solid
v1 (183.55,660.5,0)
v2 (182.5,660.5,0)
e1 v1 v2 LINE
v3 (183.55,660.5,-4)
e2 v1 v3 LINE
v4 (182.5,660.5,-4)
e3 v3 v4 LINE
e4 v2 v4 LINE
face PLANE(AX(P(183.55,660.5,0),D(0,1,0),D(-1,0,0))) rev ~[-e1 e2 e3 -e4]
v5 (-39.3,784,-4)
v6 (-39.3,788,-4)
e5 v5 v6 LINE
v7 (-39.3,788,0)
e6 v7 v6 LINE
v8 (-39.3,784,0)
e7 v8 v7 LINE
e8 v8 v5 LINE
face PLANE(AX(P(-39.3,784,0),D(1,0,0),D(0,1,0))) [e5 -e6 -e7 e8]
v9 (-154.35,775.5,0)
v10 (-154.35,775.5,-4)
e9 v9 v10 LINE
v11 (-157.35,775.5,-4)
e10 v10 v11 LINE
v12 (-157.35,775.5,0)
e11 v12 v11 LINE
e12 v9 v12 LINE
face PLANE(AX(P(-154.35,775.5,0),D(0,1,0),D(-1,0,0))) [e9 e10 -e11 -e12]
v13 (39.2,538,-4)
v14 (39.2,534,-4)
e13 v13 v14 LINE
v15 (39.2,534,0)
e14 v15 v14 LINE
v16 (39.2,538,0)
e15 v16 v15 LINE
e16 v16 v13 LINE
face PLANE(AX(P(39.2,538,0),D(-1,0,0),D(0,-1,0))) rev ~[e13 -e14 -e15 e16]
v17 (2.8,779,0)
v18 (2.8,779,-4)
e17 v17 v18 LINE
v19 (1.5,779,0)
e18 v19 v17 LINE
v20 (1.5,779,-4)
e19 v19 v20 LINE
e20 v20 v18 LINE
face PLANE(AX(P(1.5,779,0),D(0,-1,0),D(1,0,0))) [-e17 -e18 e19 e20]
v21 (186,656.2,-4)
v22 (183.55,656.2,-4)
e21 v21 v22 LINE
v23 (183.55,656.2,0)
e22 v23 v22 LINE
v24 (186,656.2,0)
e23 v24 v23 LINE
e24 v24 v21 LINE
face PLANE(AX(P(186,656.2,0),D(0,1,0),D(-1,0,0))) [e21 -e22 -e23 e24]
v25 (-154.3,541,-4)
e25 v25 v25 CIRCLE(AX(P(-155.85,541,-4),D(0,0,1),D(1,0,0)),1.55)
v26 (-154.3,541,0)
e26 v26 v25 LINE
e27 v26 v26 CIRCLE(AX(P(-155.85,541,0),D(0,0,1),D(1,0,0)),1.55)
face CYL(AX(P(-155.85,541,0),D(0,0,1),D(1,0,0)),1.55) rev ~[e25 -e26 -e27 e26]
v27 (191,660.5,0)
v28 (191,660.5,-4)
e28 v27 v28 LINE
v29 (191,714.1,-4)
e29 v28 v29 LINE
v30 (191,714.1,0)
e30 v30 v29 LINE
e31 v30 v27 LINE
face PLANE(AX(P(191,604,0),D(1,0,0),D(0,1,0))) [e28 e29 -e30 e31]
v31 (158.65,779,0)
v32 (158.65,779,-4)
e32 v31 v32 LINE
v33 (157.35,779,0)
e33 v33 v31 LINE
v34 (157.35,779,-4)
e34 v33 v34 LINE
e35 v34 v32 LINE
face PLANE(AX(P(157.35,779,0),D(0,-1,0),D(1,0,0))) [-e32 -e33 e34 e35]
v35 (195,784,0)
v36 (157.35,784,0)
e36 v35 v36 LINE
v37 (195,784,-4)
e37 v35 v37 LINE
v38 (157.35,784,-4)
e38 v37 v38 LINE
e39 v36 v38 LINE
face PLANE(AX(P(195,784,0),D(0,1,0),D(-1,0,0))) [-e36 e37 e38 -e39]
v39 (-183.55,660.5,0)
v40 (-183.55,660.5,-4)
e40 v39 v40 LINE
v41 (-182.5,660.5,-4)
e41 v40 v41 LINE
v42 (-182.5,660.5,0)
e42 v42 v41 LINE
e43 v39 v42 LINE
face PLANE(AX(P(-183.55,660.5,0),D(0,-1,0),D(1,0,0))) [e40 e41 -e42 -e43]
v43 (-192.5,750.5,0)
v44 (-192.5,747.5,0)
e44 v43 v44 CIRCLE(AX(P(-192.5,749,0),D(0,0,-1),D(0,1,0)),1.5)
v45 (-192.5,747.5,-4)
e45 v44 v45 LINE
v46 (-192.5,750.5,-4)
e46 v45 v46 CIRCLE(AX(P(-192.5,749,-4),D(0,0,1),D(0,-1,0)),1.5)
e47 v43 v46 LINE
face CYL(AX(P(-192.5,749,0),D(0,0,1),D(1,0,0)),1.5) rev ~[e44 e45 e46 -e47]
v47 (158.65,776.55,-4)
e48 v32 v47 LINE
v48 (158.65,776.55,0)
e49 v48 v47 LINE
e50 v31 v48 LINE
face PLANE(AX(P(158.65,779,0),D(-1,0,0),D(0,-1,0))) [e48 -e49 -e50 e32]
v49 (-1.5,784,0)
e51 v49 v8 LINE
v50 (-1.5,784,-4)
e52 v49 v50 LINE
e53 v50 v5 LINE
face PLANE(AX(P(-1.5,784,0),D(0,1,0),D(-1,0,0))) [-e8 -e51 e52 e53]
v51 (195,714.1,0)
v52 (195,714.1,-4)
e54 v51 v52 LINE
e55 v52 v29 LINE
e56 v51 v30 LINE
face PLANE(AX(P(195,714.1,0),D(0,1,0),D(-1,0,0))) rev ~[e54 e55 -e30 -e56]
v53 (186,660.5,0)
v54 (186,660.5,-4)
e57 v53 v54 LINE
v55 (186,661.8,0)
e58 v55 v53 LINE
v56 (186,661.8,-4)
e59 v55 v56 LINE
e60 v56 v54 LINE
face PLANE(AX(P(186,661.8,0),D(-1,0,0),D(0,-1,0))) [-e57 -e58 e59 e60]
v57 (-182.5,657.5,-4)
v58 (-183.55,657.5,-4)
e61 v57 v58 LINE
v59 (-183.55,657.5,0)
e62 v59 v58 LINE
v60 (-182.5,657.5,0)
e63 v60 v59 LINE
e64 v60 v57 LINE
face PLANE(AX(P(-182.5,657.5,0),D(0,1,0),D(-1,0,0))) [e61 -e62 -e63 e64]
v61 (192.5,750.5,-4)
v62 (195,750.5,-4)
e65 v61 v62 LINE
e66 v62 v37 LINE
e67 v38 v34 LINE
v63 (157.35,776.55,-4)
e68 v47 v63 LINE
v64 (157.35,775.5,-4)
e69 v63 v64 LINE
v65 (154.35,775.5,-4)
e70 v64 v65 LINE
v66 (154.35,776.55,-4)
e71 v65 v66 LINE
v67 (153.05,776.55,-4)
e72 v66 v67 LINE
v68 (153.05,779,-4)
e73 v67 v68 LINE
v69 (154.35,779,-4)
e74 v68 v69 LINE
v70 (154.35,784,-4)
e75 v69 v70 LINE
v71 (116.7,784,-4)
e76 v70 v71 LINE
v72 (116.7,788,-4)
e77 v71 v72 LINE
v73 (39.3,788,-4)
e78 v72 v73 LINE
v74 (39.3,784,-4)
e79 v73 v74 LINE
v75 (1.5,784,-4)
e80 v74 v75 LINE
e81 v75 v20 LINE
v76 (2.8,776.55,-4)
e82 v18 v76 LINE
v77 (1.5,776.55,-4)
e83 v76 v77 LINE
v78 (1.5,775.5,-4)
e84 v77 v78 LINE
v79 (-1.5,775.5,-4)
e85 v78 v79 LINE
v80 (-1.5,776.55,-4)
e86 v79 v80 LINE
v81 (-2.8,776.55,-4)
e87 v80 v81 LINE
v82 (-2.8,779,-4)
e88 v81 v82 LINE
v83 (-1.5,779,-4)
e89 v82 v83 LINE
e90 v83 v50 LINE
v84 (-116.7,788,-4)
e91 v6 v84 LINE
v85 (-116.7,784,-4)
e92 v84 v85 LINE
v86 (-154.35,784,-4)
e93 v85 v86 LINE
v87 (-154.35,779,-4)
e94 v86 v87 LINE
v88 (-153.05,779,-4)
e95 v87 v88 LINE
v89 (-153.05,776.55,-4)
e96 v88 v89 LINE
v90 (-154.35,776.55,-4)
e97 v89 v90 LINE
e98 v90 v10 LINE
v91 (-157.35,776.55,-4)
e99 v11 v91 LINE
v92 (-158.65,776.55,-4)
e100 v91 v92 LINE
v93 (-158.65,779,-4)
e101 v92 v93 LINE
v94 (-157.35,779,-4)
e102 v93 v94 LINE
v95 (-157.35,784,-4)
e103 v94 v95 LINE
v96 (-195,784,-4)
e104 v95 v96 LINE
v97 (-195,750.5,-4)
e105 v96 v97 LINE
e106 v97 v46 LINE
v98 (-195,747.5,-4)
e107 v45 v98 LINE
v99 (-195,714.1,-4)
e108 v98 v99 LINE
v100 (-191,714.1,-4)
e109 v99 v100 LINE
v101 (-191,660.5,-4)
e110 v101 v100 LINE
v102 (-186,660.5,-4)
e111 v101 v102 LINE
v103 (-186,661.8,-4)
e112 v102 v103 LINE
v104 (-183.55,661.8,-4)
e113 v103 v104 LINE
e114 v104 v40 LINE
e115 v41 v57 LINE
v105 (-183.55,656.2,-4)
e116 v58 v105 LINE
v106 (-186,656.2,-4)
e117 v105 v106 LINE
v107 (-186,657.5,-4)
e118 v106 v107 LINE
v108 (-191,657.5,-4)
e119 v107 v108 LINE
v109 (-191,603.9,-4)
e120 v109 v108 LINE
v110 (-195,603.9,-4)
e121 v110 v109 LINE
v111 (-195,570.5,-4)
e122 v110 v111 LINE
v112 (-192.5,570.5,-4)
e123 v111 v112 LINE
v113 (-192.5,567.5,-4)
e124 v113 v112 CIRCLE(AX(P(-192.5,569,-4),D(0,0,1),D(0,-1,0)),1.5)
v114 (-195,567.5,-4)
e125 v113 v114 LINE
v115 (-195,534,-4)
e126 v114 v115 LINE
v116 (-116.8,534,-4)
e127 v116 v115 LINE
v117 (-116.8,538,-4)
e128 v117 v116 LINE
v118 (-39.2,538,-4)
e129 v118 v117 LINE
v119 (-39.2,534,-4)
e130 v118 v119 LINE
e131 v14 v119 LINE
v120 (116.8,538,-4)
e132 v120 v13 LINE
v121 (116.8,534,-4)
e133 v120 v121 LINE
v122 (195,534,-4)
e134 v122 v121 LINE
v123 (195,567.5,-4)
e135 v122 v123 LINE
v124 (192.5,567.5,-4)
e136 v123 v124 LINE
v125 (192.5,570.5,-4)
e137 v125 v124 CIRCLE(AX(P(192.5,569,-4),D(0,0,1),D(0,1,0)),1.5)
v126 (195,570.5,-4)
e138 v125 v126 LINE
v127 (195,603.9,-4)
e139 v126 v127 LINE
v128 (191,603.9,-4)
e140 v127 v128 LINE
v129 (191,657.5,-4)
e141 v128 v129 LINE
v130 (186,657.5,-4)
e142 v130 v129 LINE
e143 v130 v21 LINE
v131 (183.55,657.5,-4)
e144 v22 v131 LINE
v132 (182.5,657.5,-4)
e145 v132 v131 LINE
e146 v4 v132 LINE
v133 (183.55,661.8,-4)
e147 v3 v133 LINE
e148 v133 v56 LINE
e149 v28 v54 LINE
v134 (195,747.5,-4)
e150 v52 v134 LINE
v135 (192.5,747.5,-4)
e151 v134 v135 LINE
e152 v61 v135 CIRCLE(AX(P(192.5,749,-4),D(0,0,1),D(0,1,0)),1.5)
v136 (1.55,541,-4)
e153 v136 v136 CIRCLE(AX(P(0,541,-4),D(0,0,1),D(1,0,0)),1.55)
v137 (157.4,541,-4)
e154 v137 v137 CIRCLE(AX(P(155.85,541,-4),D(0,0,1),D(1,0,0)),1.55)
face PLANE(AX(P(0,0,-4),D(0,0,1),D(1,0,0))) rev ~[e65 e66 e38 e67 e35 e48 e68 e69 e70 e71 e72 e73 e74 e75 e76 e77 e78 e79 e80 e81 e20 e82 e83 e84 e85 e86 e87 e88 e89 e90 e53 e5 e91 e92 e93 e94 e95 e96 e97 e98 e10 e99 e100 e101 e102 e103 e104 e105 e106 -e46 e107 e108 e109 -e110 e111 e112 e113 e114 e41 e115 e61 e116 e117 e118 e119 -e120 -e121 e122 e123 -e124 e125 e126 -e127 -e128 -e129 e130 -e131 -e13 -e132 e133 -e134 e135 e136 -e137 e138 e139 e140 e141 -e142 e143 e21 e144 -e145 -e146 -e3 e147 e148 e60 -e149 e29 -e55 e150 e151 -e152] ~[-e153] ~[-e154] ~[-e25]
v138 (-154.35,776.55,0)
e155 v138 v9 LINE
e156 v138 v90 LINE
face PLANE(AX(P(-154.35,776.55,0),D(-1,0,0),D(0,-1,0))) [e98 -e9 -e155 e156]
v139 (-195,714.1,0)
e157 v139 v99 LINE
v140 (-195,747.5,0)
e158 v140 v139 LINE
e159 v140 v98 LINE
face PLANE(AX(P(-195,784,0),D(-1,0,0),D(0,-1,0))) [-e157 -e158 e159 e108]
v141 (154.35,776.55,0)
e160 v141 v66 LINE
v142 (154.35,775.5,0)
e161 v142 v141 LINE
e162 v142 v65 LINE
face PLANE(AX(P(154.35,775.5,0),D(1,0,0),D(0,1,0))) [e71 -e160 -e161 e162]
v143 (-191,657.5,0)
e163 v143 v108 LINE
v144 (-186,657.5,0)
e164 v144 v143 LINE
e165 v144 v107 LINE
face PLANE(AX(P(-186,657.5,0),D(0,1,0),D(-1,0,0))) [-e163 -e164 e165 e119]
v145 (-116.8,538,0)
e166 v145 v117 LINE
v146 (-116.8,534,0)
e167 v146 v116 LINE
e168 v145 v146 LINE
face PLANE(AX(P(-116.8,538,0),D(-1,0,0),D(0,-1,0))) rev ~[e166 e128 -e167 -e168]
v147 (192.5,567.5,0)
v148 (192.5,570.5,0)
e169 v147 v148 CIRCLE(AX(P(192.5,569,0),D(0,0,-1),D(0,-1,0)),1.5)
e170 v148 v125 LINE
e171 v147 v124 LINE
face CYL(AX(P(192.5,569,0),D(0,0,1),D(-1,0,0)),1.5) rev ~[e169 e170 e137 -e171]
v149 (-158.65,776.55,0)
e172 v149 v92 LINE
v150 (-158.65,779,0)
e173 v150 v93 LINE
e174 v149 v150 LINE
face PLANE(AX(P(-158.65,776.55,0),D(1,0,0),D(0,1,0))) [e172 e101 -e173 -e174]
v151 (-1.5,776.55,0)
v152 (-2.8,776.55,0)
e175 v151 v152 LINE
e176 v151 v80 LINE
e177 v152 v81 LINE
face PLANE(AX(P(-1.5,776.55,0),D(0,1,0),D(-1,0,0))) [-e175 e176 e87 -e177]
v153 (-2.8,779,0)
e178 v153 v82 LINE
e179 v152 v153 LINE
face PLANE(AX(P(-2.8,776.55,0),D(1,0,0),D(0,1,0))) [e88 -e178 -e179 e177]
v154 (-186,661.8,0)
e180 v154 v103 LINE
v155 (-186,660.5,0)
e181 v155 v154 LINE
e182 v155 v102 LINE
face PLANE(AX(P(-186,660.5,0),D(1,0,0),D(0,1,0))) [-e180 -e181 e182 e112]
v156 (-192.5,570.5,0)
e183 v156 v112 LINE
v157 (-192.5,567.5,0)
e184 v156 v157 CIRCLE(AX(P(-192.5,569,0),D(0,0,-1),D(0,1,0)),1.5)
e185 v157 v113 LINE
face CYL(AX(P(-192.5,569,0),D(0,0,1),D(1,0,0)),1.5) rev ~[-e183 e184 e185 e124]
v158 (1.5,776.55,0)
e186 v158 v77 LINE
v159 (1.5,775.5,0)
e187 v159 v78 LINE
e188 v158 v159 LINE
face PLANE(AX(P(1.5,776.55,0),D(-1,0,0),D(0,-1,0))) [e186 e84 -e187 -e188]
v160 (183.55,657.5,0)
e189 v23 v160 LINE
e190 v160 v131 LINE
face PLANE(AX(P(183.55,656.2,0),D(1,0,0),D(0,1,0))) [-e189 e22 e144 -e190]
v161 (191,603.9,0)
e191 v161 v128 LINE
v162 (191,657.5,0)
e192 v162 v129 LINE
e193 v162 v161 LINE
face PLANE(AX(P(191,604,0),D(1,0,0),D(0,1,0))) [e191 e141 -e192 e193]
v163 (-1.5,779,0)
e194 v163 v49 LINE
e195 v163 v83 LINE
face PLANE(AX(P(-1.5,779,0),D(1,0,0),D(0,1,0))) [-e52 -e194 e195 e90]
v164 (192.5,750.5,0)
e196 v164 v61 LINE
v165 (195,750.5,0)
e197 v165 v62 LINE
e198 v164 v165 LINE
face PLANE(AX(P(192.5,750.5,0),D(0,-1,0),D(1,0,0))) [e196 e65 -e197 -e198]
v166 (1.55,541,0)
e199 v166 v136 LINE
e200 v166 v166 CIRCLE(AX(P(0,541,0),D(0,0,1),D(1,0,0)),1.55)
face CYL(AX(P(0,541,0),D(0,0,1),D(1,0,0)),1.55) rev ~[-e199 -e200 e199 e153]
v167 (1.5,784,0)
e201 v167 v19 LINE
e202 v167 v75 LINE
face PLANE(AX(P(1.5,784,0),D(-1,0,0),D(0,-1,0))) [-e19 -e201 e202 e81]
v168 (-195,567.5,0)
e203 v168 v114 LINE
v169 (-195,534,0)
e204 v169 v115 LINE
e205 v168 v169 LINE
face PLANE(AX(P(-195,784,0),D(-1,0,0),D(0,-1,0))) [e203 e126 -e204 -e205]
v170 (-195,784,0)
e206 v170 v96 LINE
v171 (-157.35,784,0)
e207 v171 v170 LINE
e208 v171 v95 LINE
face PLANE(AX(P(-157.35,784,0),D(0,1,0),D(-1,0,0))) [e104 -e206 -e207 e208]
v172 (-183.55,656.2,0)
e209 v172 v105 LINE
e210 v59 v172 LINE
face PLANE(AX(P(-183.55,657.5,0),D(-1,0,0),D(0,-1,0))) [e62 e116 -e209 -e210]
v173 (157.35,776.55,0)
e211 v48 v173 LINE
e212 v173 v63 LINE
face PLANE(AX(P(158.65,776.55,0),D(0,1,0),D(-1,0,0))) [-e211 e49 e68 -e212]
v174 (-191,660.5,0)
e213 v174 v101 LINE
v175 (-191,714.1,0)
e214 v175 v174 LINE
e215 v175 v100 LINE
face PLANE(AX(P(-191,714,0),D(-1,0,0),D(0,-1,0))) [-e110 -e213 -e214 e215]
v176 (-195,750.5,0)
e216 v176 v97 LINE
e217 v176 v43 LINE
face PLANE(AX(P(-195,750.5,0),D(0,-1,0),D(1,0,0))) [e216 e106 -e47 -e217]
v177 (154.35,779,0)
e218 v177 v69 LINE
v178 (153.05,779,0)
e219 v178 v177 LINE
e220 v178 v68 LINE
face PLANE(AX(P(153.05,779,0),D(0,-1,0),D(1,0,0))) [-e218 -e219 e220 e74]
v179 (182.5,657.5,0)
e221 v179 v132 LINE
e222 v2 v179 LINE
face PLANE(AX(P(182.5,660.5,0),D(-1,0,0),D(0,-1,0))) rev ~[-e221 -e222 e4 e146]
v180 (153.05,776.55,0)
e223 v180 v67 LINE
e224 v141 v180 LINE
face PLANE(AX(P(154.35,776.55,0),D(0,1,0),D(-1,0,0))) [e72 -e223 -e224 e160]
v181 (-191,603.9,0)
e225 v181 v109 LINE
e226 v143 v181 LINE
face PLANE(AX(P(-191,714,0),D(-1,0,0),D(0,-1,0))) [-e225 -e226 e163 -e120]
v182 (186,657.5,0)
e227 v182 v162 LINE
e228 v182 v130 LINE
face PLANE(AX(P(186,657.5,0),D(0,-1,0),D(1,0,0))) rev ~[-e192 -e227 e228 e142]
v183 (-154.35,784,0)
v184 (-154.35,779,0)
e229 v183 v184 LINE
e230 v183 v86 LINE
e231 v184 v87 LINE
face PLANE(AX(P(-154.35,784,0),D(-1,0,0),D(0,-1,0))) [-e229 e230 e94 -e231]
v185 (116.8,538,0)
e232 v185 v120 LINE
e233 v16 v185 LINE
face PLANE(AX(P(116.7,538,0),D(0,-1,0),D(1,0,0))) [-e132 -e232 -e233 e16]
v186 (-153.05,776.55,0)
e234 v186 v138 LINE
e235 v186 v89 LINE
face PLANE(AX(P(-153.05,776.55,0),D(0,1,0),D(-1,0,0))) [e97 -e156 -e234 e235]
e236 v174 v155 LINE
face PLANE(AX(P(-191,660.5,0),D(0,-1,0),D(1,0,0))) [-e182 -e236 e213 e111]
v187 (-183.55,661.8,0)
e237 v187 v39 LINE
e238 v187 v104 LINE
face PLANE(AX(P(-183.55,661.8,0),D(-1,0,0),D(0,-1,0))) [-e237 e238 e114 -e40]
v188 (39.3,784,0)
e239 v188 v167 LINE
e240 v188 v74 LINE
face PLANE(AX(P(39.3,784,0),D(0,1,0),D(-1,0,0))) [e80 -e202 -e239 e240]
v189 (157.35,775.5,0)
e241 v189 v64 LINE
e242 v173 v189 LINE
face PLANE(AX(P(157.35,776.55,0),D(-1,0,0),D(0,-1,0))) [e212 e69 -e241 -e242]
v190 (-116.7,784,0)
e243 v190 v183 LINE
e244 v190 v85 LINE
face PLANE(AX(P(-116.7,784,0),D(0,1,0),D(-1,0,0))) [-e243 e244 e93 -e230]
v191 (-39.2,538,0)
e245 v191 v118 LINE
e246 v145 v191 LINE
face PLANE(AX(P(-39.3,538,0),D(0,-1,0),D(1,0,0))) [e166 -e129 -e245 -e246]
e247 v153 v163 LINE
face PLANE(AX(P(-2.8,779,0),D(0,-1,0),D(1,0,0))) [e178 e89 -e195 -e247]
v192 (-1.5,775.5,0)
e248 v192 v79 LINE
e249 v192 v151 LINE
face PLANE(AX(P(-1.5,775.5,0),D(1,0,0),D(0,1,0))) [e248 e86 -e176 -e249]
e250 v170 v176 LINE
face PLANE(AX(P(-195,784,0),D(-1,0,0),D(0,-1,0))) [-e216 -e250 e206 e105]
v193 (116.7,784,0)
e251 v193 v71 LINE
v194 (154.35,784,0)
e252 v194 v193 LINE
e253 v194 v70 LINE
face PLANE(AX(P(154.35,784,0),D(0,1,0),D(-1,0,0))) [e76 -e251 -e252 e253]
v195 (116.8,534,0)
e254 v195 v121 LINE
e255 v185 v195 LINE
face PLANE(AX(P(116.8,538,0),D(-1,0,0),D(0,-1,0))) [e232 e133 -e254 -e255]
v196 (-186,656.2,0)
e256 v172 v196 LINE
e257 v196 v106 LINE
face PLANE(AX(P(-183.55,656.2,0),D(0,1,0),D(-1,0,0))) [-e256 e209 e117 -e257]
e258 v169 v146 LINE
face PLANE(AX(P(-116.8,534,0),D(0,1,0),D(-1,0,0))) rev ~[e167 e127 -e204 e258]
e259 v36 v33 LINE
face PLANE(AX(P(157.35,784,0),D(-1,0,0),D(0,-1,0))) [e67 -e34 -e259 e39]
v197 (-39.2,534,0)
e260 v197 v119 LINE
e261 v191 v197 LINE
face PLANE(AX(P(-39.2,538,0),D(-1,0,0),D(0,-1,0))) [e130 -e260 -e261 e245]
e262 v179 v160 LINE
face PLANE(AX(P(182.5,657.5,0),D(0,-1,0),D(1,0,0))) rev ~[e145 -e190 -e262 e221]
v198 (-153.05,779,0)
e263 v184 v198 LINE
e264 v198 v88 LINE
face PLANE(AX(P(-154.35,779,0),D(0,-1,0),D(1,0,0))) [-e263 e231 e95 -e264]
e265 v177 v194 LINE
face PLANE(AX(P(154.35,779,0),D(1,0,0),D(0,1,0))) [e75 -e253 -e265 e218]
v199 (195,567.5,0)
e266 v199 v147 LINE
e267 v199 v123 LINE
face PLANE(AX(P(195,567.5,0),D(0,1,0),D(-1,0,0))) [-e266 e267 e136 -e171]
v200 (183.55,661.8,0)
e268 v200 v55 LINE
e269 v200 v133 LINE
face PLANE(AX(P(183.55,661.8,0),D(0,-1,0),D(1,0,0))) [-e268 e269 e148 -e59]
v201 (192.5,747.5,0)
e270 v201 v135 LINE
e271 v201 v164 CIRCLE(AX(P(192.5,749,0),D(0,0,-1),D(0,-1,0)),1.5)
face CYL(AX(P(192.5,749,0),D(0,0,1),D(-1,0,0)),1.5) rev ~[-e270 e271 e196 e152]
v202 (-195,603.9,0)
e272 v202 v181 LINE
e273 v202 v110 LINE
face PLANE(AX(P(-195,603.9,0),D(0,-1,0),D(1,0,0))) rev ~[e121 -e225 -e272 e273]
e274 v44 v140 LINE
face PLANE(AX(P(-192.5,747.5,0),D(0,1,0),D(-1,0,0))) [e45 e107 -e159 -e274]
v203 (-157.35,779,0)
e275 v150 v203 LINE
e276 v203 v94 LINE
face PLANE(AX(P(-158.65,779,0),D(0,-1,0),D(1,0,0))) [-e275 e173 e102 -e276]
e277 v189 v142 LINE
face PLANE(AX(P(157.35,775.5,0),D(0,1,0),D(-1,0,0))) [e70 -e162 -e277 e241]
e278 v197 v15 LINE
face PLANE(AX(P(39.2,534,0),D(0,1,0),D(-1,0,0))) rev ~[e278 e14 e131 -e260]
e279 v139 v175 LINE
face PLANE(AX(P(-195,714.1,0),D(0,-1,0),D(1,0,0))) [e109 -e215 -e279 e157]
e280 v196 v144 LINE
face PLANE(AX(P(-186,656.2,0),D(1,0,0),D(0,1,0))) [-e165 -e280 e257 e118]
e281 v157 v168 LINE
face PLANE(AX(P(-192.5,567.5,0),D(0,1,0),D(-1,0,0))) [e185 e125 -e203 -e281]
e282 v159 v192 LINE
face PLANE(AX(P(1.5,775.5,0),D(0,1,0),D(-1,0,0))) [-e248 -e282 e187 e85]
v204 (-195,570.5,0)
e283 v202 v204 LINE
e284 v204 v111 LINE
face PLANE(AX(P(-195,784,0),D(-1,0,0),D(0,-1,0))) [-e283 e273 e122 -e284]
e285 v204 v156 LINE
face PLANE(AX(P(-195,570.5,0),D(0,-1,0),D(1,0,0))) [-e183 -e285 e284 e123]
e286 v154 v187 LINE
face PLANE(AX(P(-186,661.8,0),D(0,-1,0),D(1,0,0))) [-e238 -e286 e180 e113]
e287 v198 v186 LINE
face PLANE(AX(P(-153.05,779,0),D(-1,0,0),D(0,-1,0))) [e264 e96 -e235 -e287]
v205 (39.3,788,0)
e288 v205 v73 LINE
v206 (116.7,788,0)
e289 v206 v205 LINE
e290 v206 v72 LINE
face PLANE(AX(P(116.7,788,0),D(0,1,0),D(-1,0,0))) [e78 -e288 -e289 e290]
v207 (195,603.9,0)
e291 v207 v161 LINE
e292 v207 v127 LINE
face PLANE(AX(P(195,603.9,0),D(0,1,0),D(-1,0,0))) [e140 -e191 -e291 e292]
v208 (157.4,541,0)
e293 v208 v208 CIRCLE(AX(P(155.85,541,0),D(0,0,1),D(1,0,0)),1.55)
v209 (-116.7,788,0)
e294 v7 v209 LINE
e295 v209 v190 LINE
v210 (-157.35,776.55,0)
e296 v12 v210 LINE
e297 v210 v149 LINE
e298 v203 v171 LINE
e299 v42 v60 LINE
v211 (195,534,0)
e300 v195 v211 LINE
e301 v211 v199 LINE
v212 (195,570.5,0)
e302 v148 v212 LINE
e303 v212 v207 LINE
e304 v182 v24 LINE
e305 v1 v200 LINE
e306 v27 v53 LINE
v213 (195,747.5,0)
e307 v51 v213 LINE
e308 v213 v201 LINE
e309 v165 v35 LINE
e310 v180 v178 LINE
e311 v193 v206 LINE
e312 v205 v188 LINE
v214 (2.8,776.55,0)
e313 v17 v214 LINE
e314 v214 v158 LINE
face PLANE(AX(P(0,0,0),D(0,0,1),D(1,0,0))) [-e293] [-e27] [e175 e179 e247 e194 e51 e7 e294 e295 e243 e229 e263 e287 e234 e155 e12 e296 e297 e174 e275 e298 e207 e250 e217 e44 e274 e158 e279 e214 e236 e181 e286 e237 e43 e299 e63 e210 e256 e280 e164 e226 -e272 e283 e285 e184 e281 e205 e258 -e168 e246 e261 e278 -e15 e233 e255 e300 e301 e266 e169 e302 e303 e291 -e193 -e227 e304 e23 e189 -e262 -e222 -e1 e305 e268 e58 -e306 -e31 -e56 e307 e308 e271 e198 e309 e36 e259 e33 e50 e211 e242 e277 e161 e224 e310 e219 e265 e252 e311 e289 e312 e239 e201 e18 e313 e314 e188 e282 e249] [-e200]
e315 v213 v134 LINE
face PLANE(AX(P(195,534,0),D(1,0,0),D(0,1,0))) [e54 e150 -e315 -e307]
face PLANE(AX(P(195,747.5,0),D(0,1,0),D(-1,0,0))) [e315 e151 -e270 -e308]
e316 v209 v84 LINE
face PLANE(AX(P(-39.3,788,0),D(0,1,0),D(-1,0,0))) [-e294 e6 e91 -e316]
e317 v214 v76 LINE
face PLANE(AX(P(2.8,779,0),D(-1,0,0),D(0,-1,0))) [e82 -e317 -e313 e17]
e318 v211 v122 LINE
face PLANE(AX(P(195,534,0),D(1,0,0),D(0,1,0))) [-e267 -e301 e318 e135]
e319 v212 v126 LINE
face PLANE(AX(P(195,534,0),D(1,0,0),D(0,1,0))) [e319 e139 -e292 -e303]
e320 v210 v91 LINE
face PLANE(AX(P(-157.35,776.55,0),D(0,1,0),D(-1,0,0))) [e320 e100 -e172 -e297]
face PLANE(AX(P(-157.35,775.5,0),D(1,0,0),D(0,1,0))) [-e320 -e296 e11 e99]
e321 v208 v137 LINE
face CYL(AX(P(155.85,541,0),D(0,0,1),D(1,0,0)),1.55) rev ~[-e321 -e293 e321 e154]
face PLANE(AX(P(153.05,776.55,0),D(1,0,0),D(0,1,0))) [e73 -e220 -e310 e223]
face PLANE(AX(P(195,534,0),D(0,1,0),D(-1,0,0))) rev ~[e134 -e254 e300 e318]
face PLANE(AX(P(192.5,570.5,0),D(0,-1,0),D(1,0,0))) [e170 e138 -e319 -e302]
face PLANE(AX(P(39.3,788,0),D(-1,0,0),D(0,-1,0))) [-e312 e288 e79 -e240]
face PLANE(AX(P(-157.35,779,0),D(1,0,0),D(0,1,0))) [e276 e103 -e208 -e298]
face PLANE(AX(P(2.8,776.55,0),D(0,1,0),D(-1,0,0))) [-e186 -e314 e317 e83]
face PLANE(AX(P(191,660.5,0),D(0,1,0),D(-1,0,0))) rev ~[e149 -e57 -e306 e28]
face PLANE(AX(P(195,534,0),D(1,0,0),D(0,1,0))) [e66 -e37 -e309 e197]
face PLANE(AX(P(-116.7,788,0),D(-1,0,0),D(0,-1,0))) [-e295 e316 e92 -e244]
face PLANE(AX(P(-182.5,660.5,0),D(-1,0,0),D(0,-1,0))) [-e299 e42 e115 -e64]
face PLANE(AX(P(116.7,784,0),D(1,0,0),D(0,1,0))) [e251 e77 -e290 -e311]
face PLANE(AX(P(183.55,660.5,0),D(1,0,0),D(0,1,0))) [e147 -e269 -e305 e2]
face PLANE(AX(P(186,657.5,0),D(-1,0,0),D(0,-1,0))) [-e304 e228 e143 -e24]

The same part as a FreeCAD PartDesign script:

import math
import FreeCAD as App
import Part
import Sketcher

V = App.Vector

doc = App.newDocument("Part")
body = doc.addObject("PartDesign::Body", "Body")

# Sketch on XY plane
sketch1 = doc.addObject("Sketcher::SketchObject", "Sketch")
body.addObject(sketch1)
sketch1.AttachmentSupport = (doc.XY_Plane, [""])
sketch1.MapMode = "FlatFace"
sketch1.addGeometry([
    Part.LineSegment(V(39.3, 784, 0), V(1.5, 784, 0)),  # 0
    Part.LineSegment(V(1.5, 784, 0), V(1.5, 779, 0)),  # 1
    Part.LineSegment(V(1.5, 779, 0), V(2.8, 779, 0)),  # 2
    Part.LineSegment(V(2.8, 779, 0), V(2.8, 776.5, 0)),  # 3
    Part.LineSegment(V(2.8, 776.5, 0), V(1.5, 776.5, 0)),  # 4
    Part.LineSegment(V(1.5, 776.5, 0), V(1.5, 775.5, 0)),  # 5
    Part.LineSegment(V(1.5, 775.5, 0), V(-1.5, 775.5, 0)),  # 6
    Part.LineSegment(V(-1.5, 775.5, 0), V(-1.5, 776.5, 0)),  # 7
    Part.LineSegment(V(-1.5, 776.5, 0), V(-2.8, 776.5, 0)),  # 8
    Part.LineSegment(V(-2.8, 776.5, 0), V(-2.8, 779, 0)),  # 9
    Part.LineSegment(V(-2.8, 779, 0), V(-1.5, 779, 0)),  # 10
    Part.LineSegment(V(-1.5, 779, 0), V(-1.5, 784, 0)),  # 11
    Part.LineSegment(V(-1.5, 784, 0), V(-39.3, 784, 0)),  # 12
    Part.LineSegment(V(-39.3, 784, 0), V(-39.3, 788, 0)),  # 13
    Part.LineSegment(V(-39.3, 788, 0), V(-116.7, 788, 0)),  # 14
    Part.LineSegment(V(-116.7, 788, 0), V(-116.7, 784, 0)),  # 15
    Part.LineSegment(V(-116.7, 784, 0), V(-154.3, 784, 0)),  # 16
    Part.LineSegment(V(-154.3, 784, 0), V(-154.3, 779, 0)),  # 17
    Part.LineSegment(V(-154.3, 779, 0), V(-153.1, 779, 0)),  # 18
    Part.LineSegment(V(-153.1, 779, 0), V(-153.1, 776.5, 0)),  # 19
    Part.LineSegment(V(-153.1, 776.5, 0), V(-154.3, 776.5, 0)),  # 20
    Part.LineSegment(V(-154.3, 776.5, 0), V(-154.3, 775.5, 0)),  # 21
    Part.LineSegment(V(-154.3, 775.5, 0), V(-157.3, 775.5, 0)),  # 22
    Part.LineSegment(V(-157.3, 775.5, 0), V(-157.3, 776.5, 0)),  # 23
    Part.LineSegment(V(-157.3, 776.5, 0), V(-158.7, 776.5, 0)),  # 24
    Part.LineSegment(V(-158.7, 776.5, 0), V(-158.7, 779, 0)),  # 25
    Part.LineSegment(V(-158.7, 779, 0), V(-157.3, 779, 0)),  # 26
    Part.LineSegment(V(-157.3, 779, 0), V(-157.3, 784, 0)),  # 27
    Part.LineSegment(V(-157.3, 784, 0), V(-195, 784, 0)),  # 28
    Part.LineSegment(V(-195, 784, 0), V(-195, 534, 0)),  # 29
    Part.LineSegment(V(-195, 534, 0), V(-116.7, 534, 0)),  # 30
    Part.LineSegment(V(-116.7, 534, 0), V(-116.7, 538, 0)),  # 31
    Part.LineSegment(V(-116.7, 538, 0), V(-39.3, 538, 0)),  # 32
    Part.LineSegment(V(-39.3, 538, 0), V(-39.3, 534, 0)),  # 33
    Part.LineSegment(V(-39.3, 534, 0), V(39.3, 534, 0)),  # 34
    Part.LineSegment(V(39.3, 534, 0), V(39.3, 538, 0)),  # 35
    Part.LineSegment(V(39.3, 538, 0), V(116.7, 538, 0)),  # 36
    Part.LineSegment(V(116.7, 538, 0), V(116.7, 534, 0)),  # 37
    Part.LineSegment(V(116.7, 534, 0), V(195, 534, 0)),  # 38
    Part.LineSegment(V(195, 534, 0), V(195, 784, 0)),  # 39
    Part.LineSegment(V(195, 784, 0), V(157.3, 784, 0)),  # 40
    Part.LineSegment(V(157.3, 784, 0), V(157.3, 779, 0)),  # 41
    Part.LineSegment(V(157.3, 779, 0), V(158.7, 779, 0)),  # 42
    Part.LineSegment(V(158.7, 779, 0), V(158.7, 776.5, 0)),  # 43
    Part.LineSegment(V(158.7, 776.5, 0), V(157.3, 776.5, 0)),  # 44
    Part.LineSegment(V(157.3, 776.5, 0), V(157.3, 775.5, 0)),  # 45
    Part.LineSegment(V(157.3, 775.5, 0), V(154.3, 775.5, 0)),  # 46
    Part.LineSegment(V(154.3, 775.5, 0), V(154.3, 776.5, 0)),  # 47
    Part.LineSegment(V(154.3, 776.5, 0), V(153.1, 776.5, 0)),  # 48
    Part.LineSegment(V(153.1, 776.5, 0), V(153.1, 779, 0)),  # 49
    Part.LineSegment(V(153.1, 779, 0), V(154.3, 779, 0)),  # 50
    Part.LineSegment(V(154.3, 779, 0), V(154.3, 784, 0)),  # 51
    Part.LineSegment(V(154.3, 784, 0), V(116.7, 784, 0)),  # 52
    Part.LineSegment(V(116.7, 784, 0), V(116.7, 788, 0)),  # 53
    Part.LineSegment(V(116.7, 788, 0), V(39.3, 788, 0)),  # 54
    Part.LineSegment(V(39.3, 788, 0), V(39.3, 784, 0)),  # 55
    Part.Circle(V(-155.8, 541, 0), V(0, 0, 1), 1.6),  # 56
    Part.Circle(V(0, 541, 0), V(0, 0, 1), 1.6),  # 57
    Part.Circle(V(155.8, 541, 0), V(0, 0, 1), 1.6),  # 58
], False)
sketch1.addConstraint([
    Sketcher.Constraint("Coincident", 0, 2, 1, 1),
    Sketcher.Constraint("Coincident", 1, 2, 2, 1),
    Sketcher.Constraint("Coincident", 2, 2, 3, 1),
    Sketcher.Constraint("Coincident", 3, 2, 4, 1),
    Sketcher.Constraint("Coincident", 4, 2, 5, 1),
    Sketcher.Constraint("Coincident", 5, 2, 6, 1),
    Sketcher.Constraint("Coincident", 6, 2, 7, 1),
    Sketcher.Constraint("Coincident", 7, 2, 8, 1),
    Sketcher.Constraint("Coincident", 8, 2, 9, 1),
    Sketcher.Constraint("Coincident", 9, 2, 10, 1),
    Sketcher.Constraint("Coincident", 10, 2, 11, 1),
    Sketcher.Constraint("Coincident", 11, 2, 12, 1),
    Sketcher.Constraint("Coincident", 12, 2, 13, 1),
    Sketcher.Constraint("Coincident", 13, 2, 14, 1),
    Sketcher.Constraint("Coincident", 14, 2, 15, 1),
    Sketcher.Constraint("Coincident", 15, 2, 16, 1),
    Sketcher.Constraint("Coincident", 16, 2, 17, 1),
    Sketcher.Constraint("Coincident", 17, 2, 18, 1),
    Sketcher.Constraint("Coincident", 18, 2, 19, 1),
    Sketcher.Constraint("Coincident", 19, 2, 20, 1),
    Sketcher.Constraint("Coincident", 20, 2, 21, 1),
    Sketcher.Constraint("Coincident", 21, 2, 22, 1),
    Sketcher.Constraint("Coincident", 22, 2, 23, 1),
    Sketcher.Constraint("Coincident", 23, 2, 24, 1),
    Sketcher.Constraint("Coincident", 24, 2, 25, 1),
    Sketcher.Constraint("Coincident", 25, 2, 26, 1),
    Sketcher.Constraint("Coincident", 26, 2, 27, 1),
    Sketcher.Constraint("Coincident", 27, 2, 28, 1),
    Sketcher.Constraint("Coincident", 28, 2, 29, 1),
    Sketcher.Constraint("Coincident", 29, 2, 30, 1),
    Sketcher.Constraint("Coincident", 30, 2, 31, 1),
    Sketcher.Constraint("Coincident", 31, 2, 32, 1),
    Sketcher.Constraint("Coincident", 32, 2, 33, 1),
    Sketcher.Constraint("Coincident", 33, 2, 34, 1),
    Sketcher.Constraint("Coincident", 34, 2, 35, 1),
    Sketcher.Constraint("Coincident", 35, 2, 36, 1),
    Sketcher.Constraint("Coincident", 36, 2, 37, 1),
    Sketcher.Constraint("Coincident", 37, 2, 38, 1),
    Sketcher.Constraint("Coincident", 38, 2, 39, 1),
    Sketcher.Constraint("Coincident", 39, 2, 40, 1),
    Sketcher.Constraint("Coincident", 40, 2, 41, 1),
    Sketcher.Constraint("Coincident", 41, 2, 42, 1),
    Sketcher.Constraint("Coincident", 42, 2, 43, 1),
    Sketcher.Constraint("Coincident", 43, 2, 44, 1),
    Sketcher.Constraint("Coincident", 44, 2, 45, 1),
    Sketcher.Constraint("Coincident", 45, 2, 46, 1),
    Sketcher.Constraint("Coincident", 46, 2, 47, 1),
    Sketcher.Constraint("Coincident", 47, 2, 48, 1),
    Sketcher.Constraint("Coincident", 48, 2, 49, 1),
    Sketcher.Constraint("Coincident", 49, 2, 50, 1),
    Sketcher.Constraint("Coincident", 50, 2, 51, 1),
    Sketcher.Constraint("Coincident", 51, 2, 52, 1),
    Sketcher.Constraint("Coincident", 52, 2, 53, 1),
    Sketcher.Constraint("Coincident", 53, 2, 54, 1),
    Sketcher.Constraint("Coincident", 54, 2, 55, 1),
    Sketcher.Constraint("Coincident", 55, 2, 0, 1),
    Sketcher.Constraint("Horizontal", 0),
    Sketcher.Constraint("Vertical", 1),
    Sketcher.Constraint("Horizontal", 2),
    Sketcher.Constraint("Vertical", 3),
    Sketcher.Constraint("Horizontal", 4),
    Sketcher.Constraint("Vertical", 5),
    Sketcher.Constraint("Horizontal", 6),
    Sketcher.Constraint("Vertical", 7),
    Sketcher.Constraint("Horizontal", 8),
    Sketcher.Constraint("Vertical", 9),
    Sketcher.Constraint("Horizontal", 10),
    Sketcher.Constraint("Vertical", 11),
    Sketcher.Constraint("Horizontal", 12),
    Sketcher.Constraint("Vertical", 13),
    Sketcher.Constraint("Horizontal", 14),
    Sketcher.Constraint("Vertical", 15),
    Sketcher.Constraint("Horizontal", 16),
    Sketcher.Constraint("Vertical", 17),
    Sketcher.Constraint("Horizontal", 18),
    Sketcher.Constraint("Vertical", 19),
    Sketcher.Constraint("Horizontal", 20),
    Sketcher.Constraint("Vertical", 21),
    Sketcher.Constraint("Horizontal", 22),
    Sketcher.Constraint("Vertical", 23),
    Sketcher.Constraint("Horizontal", 24),
    Sketcher.Constraint("Vertical", 25),
    Sketcher.Constraint("Horizontal", 26),
    Sketcher.Constraint("Vertical", 27),
    Sketcher.Constraint("Horizontal", 28),
    Sketcher.Constraint("Vertical", 29),
    Sketcher.Constraint("Horizontal", 30),
    Sketcher.Constraint("Vertical", 31),
    Sketcher.Constraint("Horizontal", 32),
    Sketcher.Constraint("Vertical", 33),
    Sketcher.Constraint("Horizontal", 34),
    Sketcher.Constraint("Vertical", 35),
    Sketcher.Constraint("Horizontal", 36),
    Sketcher.Constraint("Vertical", 37),
    Sketcher.Constraint("Horizontal", 38),
    Sketcher.Constraint("Vertical", 39),
    Sketcher.Constraint("Horizontal", 40),
    Sketcher.Constraint("Vertical", 41),
    Sketcher.Constraint("Horizontal", 42),
    Sketcher.Constraint("Vertical", 43),
    Sketcher.Constraint("Horizontal", 44),
    Sketcher.Constraint("Vertical", 45),
    Sketcher.Constraint("Horizontal", 46),
    Sketcher.Constraint("Vertical", 47),
    Sketcher.Constraint("Horizontal", 48),
    Sketcher.Constraint("Vertical", 49),
    Sketcher.Constraint("Horizontal", 50),
    Sketcher.Constraint("Vertical", 51),
    Sketcher.Constraint("Horizontal", 52),
    Sketcher.Constraint("Vertical", 53),
    Sketcher.Constraint("Horizontal", 54),
    Sketcher.Constraint("Vertical", 55),
    Sketcher.Constraint("Equal", 56, 57),
    Sketcher.Constraint("Equal", 57, 58),
    Sketcher.Constraint("Symmetric", 56, 3, 58, 3, -2),
    Sketcher.Constraint("Symmetric", 4, 2, 7, 2, -2),
    Sketcher.Constraint("Symmetric", 2, 2, 9, 2, -2),
    Sketcher.Constraint("Symmetric", 0, 2, 11, 2, -2),
    Sketcher.Constraint("Symmetric", 32, 2, 35, 2, -2),
    Sketcher.Constraint("Symmetric", 30, 2, 37, 2, -2),
    Sketcher.Constraint("Symmetric", 28, 2, 39, 2, -2),
    Sketcher.Constraint("Symmetric", 26, 2, 41, 2, -2),
    Sketcher.Constraint("Symmetric", 24, 2, 43, 2, -2),
    Sketcher.Constraint("Symmetric", 22, 2, 45, 2, -2),
    Sketcher.Constraint("Symmetric", 20, 2, 47, 2, -2),
    Sketcher.Constraint("Symmetric", 18, 2, 49, 2, -2),
    Sketcher.Constraint("Symmetric", 16, 2, 51, 2, -2),
    Sketcher.Constraint("Symmetric", 14, 2, 53, 2, -2),
    Sketcher.Constraint("PointOnObject", 57, 3, -2),
    Sketcher.Constraint("Horizontal", 56, 3, 57, 3),
    Sketcher.Constraint("Horizontal", 12, 2, 15, 2),
    Sketcher.Constraint("Horizontal", 10, 2, 17, 2),
    Sketcher.Constraint("Horizontal", 8, 2, 19, 2),
    Sketcher.Constraint("Horizontal", 6, 2, 21, 2),
    Sketcher.Constraint("Horizontal", 20, 2, 23, 2),
    Sketcher.Constraint("Horizontal", 18, 2, 25, 2),
    Sketcher.Constraint("Horizontal", 16, 2, 27, 2),
    Sketcher.Constraint("Horizontal", 30, 2, 33, 2),
    Sketcher.Constraint("Vertical", 1, 2, 4, 2),
    Sketcher.Constraint("Vertical", 17, 2, 20, 2),
    Sketcher.Constraint("Vertical", 23, 2, 26, 2),
    Sketcher.Constraint("Vertical", 15, 2, 30, 2),
    Sketcher.Constraint("Vertical", 13, 2, 32, 2),
    Sketcher.Constraint("Vertical", 35, 2, 54, 2),
    Sketcher.Constraint("Equal", 10, 18),
    Sketcher.Constraint("Equal", 6, 22),
    Sketcher.Constraint("Equal", 20, 24),
    Sketcher.Constraint("Equal", 16, 28),
    Sketcher.Constraint("Equal", 15, 31),
    Sketcher.Constraint("Diameter", 56, 3.1),
    Sketcher.Constraint("DistanceY", 1, 2, 1, 1, 5.0),
    Sketcher.Constraint("DistanceY", 13, 1, 13, 2, 4.0),
    Sketcher.Constraint("DistanceY", 29, 2, 29, 1, 250.0),
    Sketcher.Constraint("DistanceY", 29, 2, 56, 3, 7.0),
    Sketcher.Constraint("DistanceY", 3, 2, 3, 1, 2.45),
    Sketcher.Constraint("DistanceY", 5, 2, 5, 1, 1.05),
    Sketcher.Constraint("DistanceX", 6, 2, 6, 1, 3.0),
    Sketcher.Constraint("DistanceX", 0, 2, 0, 1, 37.8),
    Sketcher.Constraint("DistanceX", 2, 1, 2, 2, 1.3),
    Sketcher.Constraint("DistanceX", 14, 2, 14, 1, 77.4),
    Sketcher.Constraint("DistanceX", 30, 1, 30, 2, 78.3),
    Sketcher.Constraint("DistanceY", -1, 1, 56, 3, 541.0),
    Sketcher.Constraint("DistanceX", 56, 3, 58, 3, 311.7),
])
pad1 = doc.addObject("PartDesign::Pad", "Pad")
body.addObject(pad1)
pad1.Profile = sketch1
pad1.Length = 4
pad1.Reversed = True

# Sketch on XY plane
sketch2 = doc.addObject("Sketcher::SketchObject", "Sketch001")
body.addObject(sketch2)
sketch2.AttachmentSupport = (doc.XY_Plane, [""])
sketch2.MapMode = "FlatFace"
sketch2.addGeometry([
    Part.LineSegment(V(116.7, 534, 0), V(116.8, 534, 0)),  # 0
    Part.LineSegment(V(116.8, 534, 0), V(116.8, 538, 0)),  # 1
    Part.LineSegment(V(116.8, 538, 0), V(116.7, 538, 0)),  # 2
    Part.LineSegment(V(116.7, 538, 0), V(116.7, 534, 0)),  # 3
    Part.LineSegment(V(39.3, 534, 0), V(39.3, 538, 0)),  # 4
    Part.LineSegment(V(39.3, 538, 0), V(39.2, 538, 0)),  # 5
    Part.LineSegment(V(39.2, 538, 0), V(39.2, 534, 0)),  # 6
    Part.LineSegment(V(39.2, 534, 0), V(39.3, 534, 0)),  # 7
    Part.LineSegment(V(-39.3, 534, 0), V(-39.2, 534, 0)),  # 8
    Part.LineSegment(V(-39.2, 534, 0), V(-39.2, 538, 0)),  # 9
    Part.LineSegment(V(-39.2, 538, 0), V(-39.3, 538, 0)),  # 10
    Part.LineSegment(V(-39.3, 538, 0), V(-39.3, 534, 0)),  # 11
    Part.LineSegment(V(-116.8, 538, 0), V(-116.8, 534, 0)),  # 12
    Part.LineSegment(V(-116.8, 534, 0), V(-116.7, 534, 0)),  # 13
    Part.LineSegment(V(-116.7, 534, 0), V(-116.7, 538, 0)),  # 14
    Part.LineSegment(V(-116.7, 538, 0), V(-116.8, 538, 0)),  # 15
], False)
sketch2.addConstraint([
    Sketcher.Constraint("Coincident", 0, 2, 1, 1),
    Sketcher.Constraint("Coincident", 1, 2, 2, 1),
    Sketcher.Constraint("Coincident", 2, 2, 3, 1),
    Sketcher.Constraint("Coincident", 3, 2, 0, 1),
    Sketcher.Constraint("Coincident", 4, 2, 5, 1),
    Sketcher.Constraint("Coincident", 5, 2, 6, 1),
    Sketcher.Constraint("Coincident", 6, 2, 7, 1),
    Sketcher.Constraint("Coincident", 7, 2, 4, 1),
    Sketcher.Constraint("Coincident", 8, 2, 9, 1),
    Sketcher.Constraint("Coincident", 9, 2, 10, 1),
    Sketcher.Constraint("Coincident", 10, 2, 11, 1),
    Sketcher.Constraint("Coincident", 11, 2, 8, 1),
    Sketcher.Constraint("Coincident", 12, 2, 13, 1),
    Sketcher.Constraint("Coincident", 13, 2, 14, 1),
    Sketcher.Constraint("Coincident", 14, 2, 15, 1),
    Sketcher.Constraint("Coincident", 15, 2, 12, 1),
    Sketcher.Constraint("Horizontal", 0),
    Sketcher.Constraint("Vertical", 1),
    Sketcher.Constraint("Horizontal", 2),
    Sketcher.Constraint("Vertical", 3),
    Sketcher.Constraint("Vertical", 4),
    Sketcher.Constraint("Horizontal", 5),
    Sketcher.Constraint("Vertical", 6),
    Sketcher.Constraint("Horizontal", 7),
    Sketcher.Constraint("Horizontal", 8),
    Sketcher.Constraint("Vertical", 9),
    Sketcher.Constraint("Horizontal", 10),
    Sketcher.Constraint("Vertical", 11),
    Sketcher.Constraint("Vertical", 12),
    Sketcher.Constraint("Horizontal", 13),
    Sketcher.Constraint("Vertical", 14),
    Sketcher.Constraint("Horizontal", 15),
    Sketcher.Constraint("Symmetric", 6, 2, 8, 2, -2),
    Sketcher.Constraint("Symmetric", 4, 2, 10, 2, -2),
    Sketcher.Constraint("Symmetric", 0, 2, 12, 2, -2),
    Sketcher.Constraint("Symmetric", 2, 2, 14, 2, -2),
    Sketcher.Constraint("Horizontal", 2, 2, 4, 2),
    Sketcher.Constraint("Horizontal", 3, 2, 6, 2),
    Sketcher.Constraint("Equal", 2, 5),
    Sketcher.Constraint("DistanceY", 1, 1, 1, 2, 4.0),
    Sketcher.Constraint("DistanceX", 0, 1, 0, 2, 0.1),
    Sketcher.Constraint("DistanceY", -1, 1, 0, 2, 534.0),
    Sketcher.Constraint("DistanceX", 12, 2, 6, 2, 156.0),
    Sketcher.Constraint("DistanceX", -1, 1, 0, 2, 116.8),
])
pocket1 = doc.addObject("PartDesign::Pocket", "Pocket")
body.addObject(pocket1)
pocket1.Profile = sketch2
pocket1.Length = 4

# Sketch on XY plane
sketch3 = doc.addObject("Sketcher::SketchObject", "Sketch002")
body.addObject(sketch3)
sketch3.AttachmentSupport = (doc.XY_Plane, [""])
sketch3.MapMode = "FlatFace"
sketch3.addGeometry([
    Part.LineSegment(V(195, 714.1, 0), V(191, 714.1, 0)),  # 0
    Part.LineSegment(V(191, 714.1, 0), V(191, 603.9, 0)),  # 1
    Part.LineSegment(V(191, 603.9, 0), V(195, 603.9, 0)),  # 2
    Part.LineSegment(V(195, 603.9, 0), V(195, 714.1, 0)),  # 3
    Part.LineSegment(V(-191, 714.1, 0), V(-195, 714.1, 0)),  # 4
    Part.LineSegment(V(-195, 714.1, 0), V(-195, 603.9, 0)),  # 5
    Part.LineSegment(V(-195, 603.9, 0), V(-191, 603.9, 0)),  # 6
    Part.LineSegment(V(-191, 603.9, 0), V(-191, 714.1, 0)),  # 7
], False)
sketch3.addConstraint([
    Sketcher.Constraint("Coincident", 0, 2, 1, 1),
    Sketcher.Constraint("Coincident", 1, 2, 2, 1),
    Sketcher.Constraint("Coincident", 2, 2, 3, 1),
    Sketcher.Constraint("Coincident", 3, 2, 0, 1),
    Sketcher.Constraint("Coincident", 4, 2, 5, 1),
    Sketcher.Constraint("Coincident", 5, 2, 6, 1),
    Sketcher.Constraint("Coincident", 6, 2, 7, 1),
    Sketcher.Constraint("Coincident", 7, 2, 4, 1),
    Sketcher.Constraint("Horizontal", 0),
    Sketcher.Constraint("Vertical", 1),
    Sketcher.Constraint("Horizontal", 2),
    Sketcher.Constraint("Vertical", 3),
    Sketcher.Constraint("Horizontal", 4),
    Sketcher.Constraint("Vertical", 5),
    Sketcher.Constraint("Horizontal", 6),
    Sketcher.Constraint("Vertical", 7),
    Sketcher.Constraint("Symmetric", 3, 2, 4, 2, -2),
    Sketcher.Constraint("Symmetric", 1, 2, 6, 2, -2),
    Sketcher.Constraint("DistanceX", 0, 2, 0, 1, 4.0),
    Sketcher.Constraint("DistanceY", 1, 2, 1, 1, 110.2),
    Sketcher.Constraint("DistanceX", -1, 1, 0, 2, 191.0),
    Sketcher.Constraint("DistanceY", -1, 1, 0, 2, 714.1),
])
pocket2 = doc.addObject("PartDesign::Pocket", "Pocket001")
body.addObject(pocket2)
pocket2.Profile = sketch3
pocket2.Length = 4

# Sketch on XY plane
sketch4 = doc.addObject("Sketcher::SketchObject", "Sketch003")
body.addObject(sketch4)
sketch4.AttachmentSupport = (doc.XY_Plane, [""])
sketch4.MapMode = "FlatFace"
sketch4.addGeometry([
    Part.LineSegment(V(192.5, 747.5, 0), V(195, 747.5, 0)),  # 0
    Part.LineSegment(V(195, 747.5, 0), V(195, 750.5, 0)),  # 1
    Part.LineSegment(V(195, 750.5, 0), V(192.5, 750.5, 0)),  # 2
    Part.ArcOfCircle(Part.Circle(V(192.5, 749, 0), V(0, 0, 1), 1.5), math.radians(90), math.radians(270)),  # 3
    Part.LineSegment(V(195, 567.5, 0), V(195, 570.5, 0)),  # 4
    Part.LineSegment(V(195, 570.5, 0), V(192.5, 570.5, 0)),  # 5
    Part.ArcOfCircle(Part.Circle(V(192.5, 569, 0), V(0, 0, 1), 1.5), math.radians(90), math.radians(270)),  # 6
    Part.LineSegment(V(192.5, 567.5, 0), V(195, 567.5, 0)),  # 7
    Part.LineSegment(V(-195, 570.5, 0), V(-195, 567.5, 0)),  # 8
    Part.LineSegment(V(-195, 567.5, 0), V(-192.5, 567.5, 0)),  # 9
    Part.ArcOfCircle(Part.Circle(V(-192.5, 569, 0), V(0, 0, 1), 1.5), math.radians(-90), math.radians(90)),  # 10
    Part.LineSegment(V(-192.5, 570.5, 0), V(-195, 570.5, 0)),  # 11
    Part.LineSegment(V(-195, 750.5, 0), V(-195, 747.5, 0)),  # 12
    Part.LineSegment(V(-195, 747.5, 0), V(-192.5, 747.5, 0)),  # 13
    Part.ArcOfCircle(Part.Circle(V(-192.5, 749, 0), V(0, 0, 1), 1.5), math.radians(-90), math.radians(90)),  # 14
    Part.LineSegment(V(-192.5, 750.5, 0), V(-195, 750.5, 0)),  # 15
], False)
sketch4.addConstraint([
    Sketcher.Constraint("Coincident", 0, 2, 1, 1),
    Sketcher.Constraint("Coincident", 1, 2, 2, 1),
    Sketcher.Constraint("Tangent", 2, 2, 3, 1),
    Sketcher.Constraint("Tangent", 3, 2, 0, 1),
    Sketcher.Constraint("Coincident", 4, 2, 5, 1),
    Sketcher.Constraint("Tangent", 5, 2, 6, 1),
    Sketcher.Constraint("Tangent", 6, 2, 7, 1),
    Sketcher.Constraint("Coincident", 7, 2, 4, 1),
    Sketcher.Constraint("Coincident", 8, 2, 9, 1),
    Sketcher.Constraint("Tangent", 9, 2, 10, 1),
    Sketcher.Constraint("Tangent", 10, 2, 11, 1),
    Sketcher.Constraint("Coincident", 11, 2, 8, 1),
    Sketcher.Constraint("Coincident", 12, 2, 13, 1),
    Sketcher.Constraint("Tangent", 13, 2, 14, 1),
    Sketcher.Constraint("Tangent", 14, 2, 15, 1),
    Sketcher.Constraint("Coincident", 15, 2, 12, 1),
    Sketcher.Constraint("Horizontal", 0),
    Sketcher.Constraint("Vertical", 1),
    Sketcher.Constraint("Horizontal", 2),
    Sketcher.Constraint("Vertical", 4),
    Sketcher.Constraint("Horizontal", 5),
    Sketcher.Constraint("Horizontal", 7),
    Sketcher.Constraint("Vertical", 8),
    Sketcher.Constraint("Horizontal", 9),
    Sketcher.Constraint("Horizontal", 11),
    Sketcher.Constraint("Vertical", 12),
    Sketcher.Constraint("Horizontal", 13),
    Sketcher.Constraint("Horizontal", 15),
    Sketcher.Constraint("Equal", 3, 6),
    Sketcher.Constraint("Equal", 6, 10),
    Sketcher.Constraint("Equal", 10, 14),
    Sketcher.Constraint("Symmetric", 6, 3, 10, 3, -2),
    Sketcher.Constraint("Symmetric", 3, 3, 14, 3, -2),
    Sketcher.Constraint("Vertical", 3, 3, 6, 3),
    Sketcher.Constraint("Vertical", 1, 2, 4, 2),
    Sketcher.Constraint("Vertical", 11, 2, 12, 2),
    Sketcher.Constraint("Equal", 7, 9),
    Sketcher.Constraint("Radius", 3, 1.5),
    Sketcher.Constraint("DistanceX", 0, 1, 0, 2, 2.5),
    Sketcher.Constraint("DistanceY", -1, 1, 3, 3, 749.0),
    Sketcher.Constraint("DistanceY", -1, 1, 6, 3, 569.0),
    Sketcher.Constraint("DistanceX", -1, 1, 0, 2, 195.0),
])
pocket3 = doc.addObject("PartDesign::Pocket", "Pocket002")
body.addObject(pocket3)
pocket3.Profile = sketch4
pocket3.Length = 4

# Sketch on XY plane
sketch5 = doc.addObject("Sketcher::SketchObject", "Sketch004")
body.addObject(sketch5)
sketch5.AttachmentSupport = (doc.XY_Plane, [""])
sketch5.MapMode = "FlatFace"
sketch5.addGeometry([
    Part.LineSegment(V(-186, 660.5, 0), V(-191, 660.5, 0)),  # 0
    Part.LineSegment(V(-191, 660.5, 0), V(-191, 657.5, 0)),  # 1
    Part.LineSegment(V(-191, 657.5, 0), V(-186, 657.5, 0)),  # 2
    Part.LineSegment(V(-186, 657.5, 0), V(-186, 656.2, 0)),  # 3
    Part.LineSegment(V(-186, 656.2, 0), V(-183.6, 656.2, 0)),  # 4
    Part.LineSegment(V(-183.6, 656.2, 0), V(-183.6, 657.5, 0)),  # 5
    Part.LineSegment(V(-183.6, 657.5, 0), V(-182.5, 657.5, 0)),  # 6
    Part.LineSegment(V(-182.5, 657.5, 0), V(-182.5, 660.5, 0)),  # 7
    Part.LineSegment(V(-182.5, 660.5, 0), V(-183.6, 660.5, 0)),  # 8
    Part.LineSegment(V(-183.6, 660.5, 0), V(-183.6, 661.8, 0)),  # 9
    Part.LineSegment(V(-183.6, 661.8, 0), V(-186, 661.8, 0)),  # 10
    Part.LineSegment(V(-186, 661.8, 0), V(-186, 660.5, 0)),  # 11
    Part.LineSegment(V(186, 657.5, 0), V(191, 657.5, 0)),  # 12
    Part.LineSegment(V(191, 657.5, 0), V(191, 660.5, 0)),  # 13
    Part.LineSegment(V(191, 660.5, 0), V(186, 660.5, 0)),  # 14
    Part.LineSegment(V(186, 660.5, 0), V(186, 661.8, 0)),  # 15
    Part.LineSegment(V(186, 661.8, 0), V(183.6, 661.8, 0)),  # 16
    Part.LineSegment(V(183.6, 661.8, 0), V(183.6, 660.5, 0)),  # 17
    Part.LineSegment(V(183.6, 660.5, 0), V(182.5, 660.5, 0)),  # 18
    Part.LineSegment(V(182.5, 660.5, 0), V(182.5, 657.5, 0)),  # 19
    Part.LineSegment(V(182.5, 657.5, 0), V(183.6, 657.5, 0)),  # 20
    Part.LineSegment(V(183.6, 657.5, 0), V(183.6, 656.2, 0)),  # 21
    Part.LineSegment(V(183.6, 656.2, 0), V(186, 656.2, 0)),  # 22
    Part.LineSegment(V(186, 656.2, 0), V(186, 657.5, 0)),  # 23
], False)
sketch5.addConstraint([
    Sketcher.Constraint("Coincident", 0, 2, 1, 1),
    Sketcher.Constraint("Coincident", 1, 2, 2, 1),
    Sketcher.Constraint("Coincident", 2, 2, 3, 1),
    Sketcher.Constraint("Coincident", 3, 2, 4, 1),
    Sketcher.Constraint("Coincident", 4, 2, 5, 1),
    Sketcher.Constraint("Coincident", 5, 2, 6, 1),
    Sketcher.Constraint("Coincident", 6, 2, 7, 1),
    Sketcher.Constraint("Coincident", 7, 2, 8, 1),
    Sketcher.Constraint("Coincident", 8, 2, 9, 1),
    Sketcher.Constraint("Coincident", 9, 2, 10, 1),
    Sketcher.Constraint("Coincident", 10, 2, 11, 1),
    Sketcher.Constraint("Coincident", 11, 2, 0, 1),
    Sketcher.Constraint("Coincident", 12, 2, 13, 1),
    Sketcher.Constraint("Coincident", 13, 2, 14, 1),
    Sketcher.Constraint("Coincident", 14, 2, 15, 1),
    Sketcher.Constraint("Coincident", 15, 2, 16, 1),
    Sketcher.Constraint("Coincident", 16, 2, 17, 1),
    Sketcher.Constraint("Coincident", 17, 2, 18, 1),
    Sketcher.Constraint("Coincident", 18, 2, 19, 1),
    Sketcher.Constraint("Coincident", 19, 2, 20, 1),
    Sketcher.Constraint("Coincident", 20, 2, 21, 1),
    Sketcher.Constraint("Coincident", 21, 2, 22, 1),
    Sketcher.Constraint("Coincident", 22, 2, 23, 1),
    Sketcher.Constraint("Coincident", 23, 2, 12, 1),
    Sketcher.Constraint("Horizontal", 0),
    Sketcher.Constraint("Vertical", 1),
    Sketcher.Constraint("Horizontal", 2),
    Sketcher.Constraint("Vertical", 3),
    Sketcher.Constraint("Horizontal", 4),
    Sketcher.Constraint("Vertical", 5),
    Sketcher.Constraint("Horizontal", 6),
    Sketcher.Constraint("Vertical", 7),
    Sketcher.Constraint("Horizontal", 8),
    Sketcher.Constraint("Vertical", 9),
    Sketcher.Constraint("Horizontal", 10),
    Sketcher.Constraint("Vertical", 11),
    Sketcher.Constraint("Horizontal", 12),
    Sketcher.Constraint("Vertical", 13),
    Sketcher.Constraint("Horizontal", 14),
    Sketcher.Constraint("Vertical", 15),
    Sketcher.Constraint("Horizontal", 16),
    Sketcher.Constraint("Vertical", 17),
    Sketcher.Constraint("Horizontal", 18),
    Sketcher.Constraint("Vertical", 19),
    Sketcher.Constraint("Horizontal", 20),
    Sketcher.Constraint("Vertical", 21),
    Sketcher.Constraint("Horizontal", 22),
    Sketcher.Constraint("Vertical", 23),
    Sketcher.Constraint("Symmetric", 1, 2, 12, 2, -2),
    Sketcher.Constraint("Symmetric", 11, 2, 14, 2, -2),
    Sketcher.Constraint("Symmetric", 9, 2, 16, 2, -2),
    Sketcher.Constraint("Symmetric", 7, 2, 18, 2, -2),
    Sketcher.Constraint("Symmetric", 5, 2, 20, 2, -2),
    Sketcher.Constraint("Symmetric", 3, 2, 22, 2, -2),
    Sketcher.Constraint("Horizontal", 2, 2, 5, 2),
    Sketcher.Constraint("Horizontal", 0, 2, 7, 2),
    Sketcher.Constraint("Vertical", 5, 2, 8, 2),
    Sketcher.Constraint("Vertical", 3, 2, 10, 2),
    Sketcher.Constraint("Equal", 5, 9),
    Sketcher.Constraint("DistanceY", 1, 2, 1, 1, 3.0),
    Sketcher.Constraint("DistanceX", 4, 1, 4, 2, 2.45),
    Sketcher.Constraint("DistanceX", 1, 2, 6, 2, 8.5),
    Sketcher.Constraint("DistanceX", 0, 2, 0, 1, 5.0),
    Sketcher.Constraint("DistanceY", 3, 2, 3, 1, 1.3),
    Sketcher.Constraint("DistanceX", 0, 2, -1, 1, 191.0),
    Sketcher.Constraint("DistanceY", -1, 1, 0, 2, 660.5),
])
pocket4 = doc.addObject("PartDesign::Pocket", "Pocket003")
body.addObject(pocket4)
pocket4.Profile = sketch5
pocket4.Length = 4

doc.recompute()
